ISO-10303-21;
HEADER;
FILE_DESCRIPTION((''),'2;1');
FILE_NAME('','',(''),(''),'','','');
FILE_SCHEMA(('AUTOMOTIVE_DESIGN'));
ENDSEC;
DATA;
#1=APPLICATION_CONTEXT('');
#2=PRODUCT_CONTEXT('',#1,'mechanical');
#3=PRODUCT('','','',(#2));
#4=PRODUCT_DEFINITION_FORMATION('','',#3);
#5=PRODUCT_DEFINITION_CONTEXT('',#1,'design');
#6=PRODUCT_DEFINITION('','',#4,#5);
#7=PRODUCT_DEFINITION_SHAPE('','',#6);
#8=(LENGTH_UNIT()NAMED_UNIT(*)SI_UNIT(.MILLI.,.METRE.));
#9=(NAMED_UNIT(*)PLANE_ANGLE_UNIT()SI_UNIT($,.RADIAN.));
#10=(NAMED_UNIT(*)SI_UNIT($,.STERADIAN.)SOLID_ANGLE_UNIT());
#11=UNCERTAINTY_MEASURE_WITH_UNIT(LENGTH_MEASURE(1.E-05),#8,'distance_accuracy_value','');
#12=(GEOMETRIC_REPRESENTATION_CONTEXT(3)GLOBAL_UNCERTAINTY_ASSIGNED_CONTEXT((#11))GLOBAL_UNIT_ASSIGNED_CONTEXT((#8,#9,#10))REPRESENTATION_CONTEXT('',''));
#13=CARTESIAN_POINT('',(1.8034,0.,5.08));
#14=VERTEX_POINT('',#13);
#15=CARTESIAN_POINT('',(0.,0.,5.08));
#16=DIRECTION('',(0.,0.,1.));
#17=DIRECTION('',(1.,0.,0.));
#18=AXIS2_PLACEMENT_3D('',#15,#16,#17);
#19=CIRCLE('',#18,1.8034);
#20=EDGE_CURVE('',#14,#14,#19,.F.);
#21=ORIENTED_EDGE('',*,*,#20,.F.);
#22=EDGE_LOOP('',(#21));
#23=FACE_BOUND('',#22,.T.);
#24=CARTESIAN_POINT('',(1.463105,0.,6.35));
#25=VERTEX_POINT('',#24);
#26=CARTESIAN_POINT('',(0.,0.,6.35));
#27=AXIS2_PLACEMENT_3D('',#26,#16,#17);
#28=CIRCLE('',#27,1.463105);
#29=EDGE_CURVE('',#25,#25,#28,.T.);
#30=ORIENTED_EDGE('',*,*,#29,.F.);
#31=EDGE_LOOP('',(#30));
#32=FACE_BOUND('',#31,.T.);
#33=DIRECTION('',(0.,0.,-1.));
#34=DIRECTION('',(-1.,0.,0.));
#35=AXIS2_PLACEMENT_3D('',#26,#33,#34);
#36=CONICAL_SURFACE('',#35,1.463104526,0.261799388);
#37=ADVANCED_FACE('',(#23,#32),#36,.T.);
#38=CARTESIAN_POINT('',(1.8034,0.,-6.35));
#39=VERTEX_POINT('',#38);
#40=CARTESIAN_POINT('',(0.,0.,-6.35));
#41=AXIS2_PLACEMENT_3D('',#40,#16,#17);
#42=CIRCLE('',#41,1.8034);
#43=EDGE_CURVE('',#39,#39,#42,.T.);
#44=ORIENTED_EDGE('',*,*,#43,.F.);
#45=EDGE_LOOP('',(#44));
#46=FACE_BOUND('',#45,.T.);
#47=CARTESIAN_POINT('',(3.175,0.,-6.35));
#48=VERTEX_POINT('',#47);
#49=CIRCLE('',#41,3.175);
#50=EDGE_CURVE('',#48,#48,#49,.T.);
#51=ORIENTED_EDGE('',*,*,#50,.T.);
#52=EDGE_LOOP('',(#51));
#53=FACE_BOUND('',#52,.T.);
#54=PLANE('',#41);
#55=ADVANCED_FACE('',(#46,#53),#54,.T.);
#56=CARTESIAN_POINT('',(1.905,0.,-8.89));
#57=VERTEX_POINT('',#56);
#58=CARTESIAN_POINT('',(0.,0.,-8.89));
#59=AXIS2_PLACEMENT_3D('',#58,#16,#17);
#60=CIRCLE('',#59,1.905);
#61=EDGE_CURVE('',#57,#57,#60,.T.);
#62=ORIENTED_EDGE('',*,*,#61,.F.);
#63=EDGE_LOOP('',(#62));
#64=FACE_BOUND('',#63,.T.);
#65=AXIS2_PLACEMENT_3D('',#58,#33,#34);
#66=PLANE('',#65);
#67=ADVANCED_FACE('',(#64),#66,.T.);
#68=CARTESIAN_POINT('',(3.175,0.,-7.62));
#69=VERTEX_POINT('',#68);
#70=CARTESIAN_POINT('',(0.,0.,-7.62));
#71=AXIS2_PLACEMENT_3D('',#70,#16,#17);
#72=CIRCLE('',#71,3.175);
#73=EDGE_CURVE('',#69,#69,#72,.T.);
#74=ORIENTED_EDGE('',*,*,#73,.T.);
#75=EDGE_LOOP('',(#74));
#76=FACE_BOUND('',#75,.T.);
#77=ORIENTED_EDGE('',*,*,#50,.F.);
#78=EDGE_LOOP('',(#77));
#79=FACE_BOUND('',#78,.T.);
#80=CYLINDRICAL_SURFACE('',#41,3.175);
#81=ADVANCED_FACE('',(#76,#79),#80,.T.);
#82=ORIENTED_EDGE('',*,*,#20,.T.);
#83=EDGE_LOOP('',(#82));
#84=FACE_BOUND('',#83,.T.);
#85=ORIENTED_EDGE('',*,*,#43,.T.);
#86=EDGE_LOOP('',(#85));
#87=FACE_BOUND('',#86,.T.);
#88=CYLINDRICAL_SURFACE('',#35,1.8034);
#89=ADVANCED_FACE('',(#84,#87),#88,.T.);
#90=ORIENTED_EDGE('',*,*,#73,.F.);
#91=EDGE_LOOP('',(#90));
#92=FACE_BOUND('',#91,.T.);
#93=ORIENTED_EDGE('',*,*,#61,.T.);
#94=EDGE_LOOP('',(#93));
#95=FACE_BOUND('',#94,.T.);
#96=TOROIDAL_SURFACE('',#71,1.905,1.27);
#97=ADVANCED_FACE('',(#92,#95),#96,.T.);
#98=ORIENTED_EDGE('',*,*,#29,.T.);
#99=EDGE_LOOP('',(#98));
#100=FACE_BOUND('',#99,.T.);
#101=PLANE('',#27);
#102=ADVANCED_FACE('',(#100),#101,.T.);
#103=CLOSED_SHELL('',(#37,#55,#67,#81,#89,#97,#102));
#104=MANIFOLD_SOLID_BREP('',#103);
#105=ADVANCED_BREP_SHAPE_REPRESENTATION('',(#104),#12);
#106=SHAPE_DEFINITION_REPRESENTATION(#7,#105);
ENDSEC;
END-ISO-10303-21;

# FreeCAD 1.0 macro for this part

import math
import FreeCAD as App
import Part
import Sketcher
Q = App.Units.Quantity


def edges_at(feature, points):
    """Names of the edges that pass closest to the given points."""
    edges = feature.Shape.Edges
    near = lambda p: min(range(len(edges)), key=lambda i: edges[i].distToShape(Part.Vertex(*p))[0])
    return sorted({f"Edge{near(p) + 1}" for p in points})

doc = App.newDocument("Part")
body = doc.addObject("PartDesign::Body", "Body")

# Sketch on XY plane
sketch1 = body.newObject("Sketcher::SketchObject", "Sketch")
sketch1.AttachmentSupport = (doc.getObject("XY_Plane"), [""])
sketch1.MapMode = "FlatFace"
sketch1.addGeometry(Part.Circle(App.Vector(0, 0, 0), App.Vector(0, 0, 1), 1.8), False)
sketch1.addConstraint([
    Sketcher.Constraint("Coincident", 0, 3, -1, 1),
    Sketcher.Constraint("Diameter", 0, Q("0.142 in")),
])
pad1 = body.newObject("PartDesign::Pad", "Pad")
pad1.Profile = sketch1
pad1.Length = Q("0.5 in")
pad1.Midplane = True
doc.recompute()

chamfer = body.newObject("PartDesign::Chamfer", "Chamfer")
chamfer.Base = (pad1, edges_at(pad1, [(-1.803, 0, 6.35)]))
chamfer.ChamferType = "Two distances"
chamfer.Size = Q("0.05 in")
chamfer.Size2 = 0.340295

# Sketch on XZ plane
sketch2 = body.newObject("Sketcher::SketchObject", "Sketch001")
sketch2.AttachmentSupport = (doc.getObject("XZ_Plane"), [""])
sketch2.MapMode = "FlatFace"
sketch2.addGeometry([
    Part.LineSegment(App.Vector(0, -6.3, 0), App.Vector(3.2, -6.3, 0)),  # 0
    Part.LineSegment(App.Vector(3.2, -6.3, 0), App.Vector(3.2, -7.6, 0)),  # 1
    Part.ArcOfCircle(Part.Circle(App.Vector(1.9, -7.6, 0), App.Vector(0, 0, 1), 1.3), math.radians(-90), math.radians(0)),  # 2
    Part.LineSegment(App.Vector(1.9, -8.9, 0), App.Vector(0, -8.9, 0)),  # 3
    Part.LineSegment(App.Vector(0, -8.9, 0), App.Vector(0, -6.3, 0)),  # 4
], False)
sketch2.addConstraint([
    Sketcher.Constraint("Coincident", 0, 2, 1, 1),
    Sketcher.Constraint("Tangent", 1, 2, 2, 2),
    Sketcher.Constraint("Tangent", 2, 1, 3, 1),
    Sketcher.Constraint("Coincident", 3, 2, 4, 1),
    Sketcher.Constraint("Coincident", 4, 2, 0, 1),
    Sketcher.Constraint("Horizontal", 0),
    Sketcher.Constraint("Vertical", 1),
    Sketcher.Constraint("Horizontal", 3),
    Sketcher.Constraint("Vertical", 4),
    Sketcher.Constraint("PointOnObject", 3, 2, -2),
    Sketcher.Constraint("Radius", 2, Q("0.05 in")),
    Sketcher.Constraint("DistanceY", 4, 1, 4, 2, Q("0.1 in")),
    Sketcher.Constraint("DistanceY", 2, 3, -1, 1, Q("0.3 in")),
    Sketcher.Constraint("DistanceX", 0, 1, 0, 2, Q("0.125 in")),
])
revolution = body.newObject("PartDesign::Revolution", "Revolution")
revolution.Profile = sketch2
revolution.ReferenceAxis = (sketch2, ["V_Axis"])
revolution.Angle = 360

doc.recompute()
